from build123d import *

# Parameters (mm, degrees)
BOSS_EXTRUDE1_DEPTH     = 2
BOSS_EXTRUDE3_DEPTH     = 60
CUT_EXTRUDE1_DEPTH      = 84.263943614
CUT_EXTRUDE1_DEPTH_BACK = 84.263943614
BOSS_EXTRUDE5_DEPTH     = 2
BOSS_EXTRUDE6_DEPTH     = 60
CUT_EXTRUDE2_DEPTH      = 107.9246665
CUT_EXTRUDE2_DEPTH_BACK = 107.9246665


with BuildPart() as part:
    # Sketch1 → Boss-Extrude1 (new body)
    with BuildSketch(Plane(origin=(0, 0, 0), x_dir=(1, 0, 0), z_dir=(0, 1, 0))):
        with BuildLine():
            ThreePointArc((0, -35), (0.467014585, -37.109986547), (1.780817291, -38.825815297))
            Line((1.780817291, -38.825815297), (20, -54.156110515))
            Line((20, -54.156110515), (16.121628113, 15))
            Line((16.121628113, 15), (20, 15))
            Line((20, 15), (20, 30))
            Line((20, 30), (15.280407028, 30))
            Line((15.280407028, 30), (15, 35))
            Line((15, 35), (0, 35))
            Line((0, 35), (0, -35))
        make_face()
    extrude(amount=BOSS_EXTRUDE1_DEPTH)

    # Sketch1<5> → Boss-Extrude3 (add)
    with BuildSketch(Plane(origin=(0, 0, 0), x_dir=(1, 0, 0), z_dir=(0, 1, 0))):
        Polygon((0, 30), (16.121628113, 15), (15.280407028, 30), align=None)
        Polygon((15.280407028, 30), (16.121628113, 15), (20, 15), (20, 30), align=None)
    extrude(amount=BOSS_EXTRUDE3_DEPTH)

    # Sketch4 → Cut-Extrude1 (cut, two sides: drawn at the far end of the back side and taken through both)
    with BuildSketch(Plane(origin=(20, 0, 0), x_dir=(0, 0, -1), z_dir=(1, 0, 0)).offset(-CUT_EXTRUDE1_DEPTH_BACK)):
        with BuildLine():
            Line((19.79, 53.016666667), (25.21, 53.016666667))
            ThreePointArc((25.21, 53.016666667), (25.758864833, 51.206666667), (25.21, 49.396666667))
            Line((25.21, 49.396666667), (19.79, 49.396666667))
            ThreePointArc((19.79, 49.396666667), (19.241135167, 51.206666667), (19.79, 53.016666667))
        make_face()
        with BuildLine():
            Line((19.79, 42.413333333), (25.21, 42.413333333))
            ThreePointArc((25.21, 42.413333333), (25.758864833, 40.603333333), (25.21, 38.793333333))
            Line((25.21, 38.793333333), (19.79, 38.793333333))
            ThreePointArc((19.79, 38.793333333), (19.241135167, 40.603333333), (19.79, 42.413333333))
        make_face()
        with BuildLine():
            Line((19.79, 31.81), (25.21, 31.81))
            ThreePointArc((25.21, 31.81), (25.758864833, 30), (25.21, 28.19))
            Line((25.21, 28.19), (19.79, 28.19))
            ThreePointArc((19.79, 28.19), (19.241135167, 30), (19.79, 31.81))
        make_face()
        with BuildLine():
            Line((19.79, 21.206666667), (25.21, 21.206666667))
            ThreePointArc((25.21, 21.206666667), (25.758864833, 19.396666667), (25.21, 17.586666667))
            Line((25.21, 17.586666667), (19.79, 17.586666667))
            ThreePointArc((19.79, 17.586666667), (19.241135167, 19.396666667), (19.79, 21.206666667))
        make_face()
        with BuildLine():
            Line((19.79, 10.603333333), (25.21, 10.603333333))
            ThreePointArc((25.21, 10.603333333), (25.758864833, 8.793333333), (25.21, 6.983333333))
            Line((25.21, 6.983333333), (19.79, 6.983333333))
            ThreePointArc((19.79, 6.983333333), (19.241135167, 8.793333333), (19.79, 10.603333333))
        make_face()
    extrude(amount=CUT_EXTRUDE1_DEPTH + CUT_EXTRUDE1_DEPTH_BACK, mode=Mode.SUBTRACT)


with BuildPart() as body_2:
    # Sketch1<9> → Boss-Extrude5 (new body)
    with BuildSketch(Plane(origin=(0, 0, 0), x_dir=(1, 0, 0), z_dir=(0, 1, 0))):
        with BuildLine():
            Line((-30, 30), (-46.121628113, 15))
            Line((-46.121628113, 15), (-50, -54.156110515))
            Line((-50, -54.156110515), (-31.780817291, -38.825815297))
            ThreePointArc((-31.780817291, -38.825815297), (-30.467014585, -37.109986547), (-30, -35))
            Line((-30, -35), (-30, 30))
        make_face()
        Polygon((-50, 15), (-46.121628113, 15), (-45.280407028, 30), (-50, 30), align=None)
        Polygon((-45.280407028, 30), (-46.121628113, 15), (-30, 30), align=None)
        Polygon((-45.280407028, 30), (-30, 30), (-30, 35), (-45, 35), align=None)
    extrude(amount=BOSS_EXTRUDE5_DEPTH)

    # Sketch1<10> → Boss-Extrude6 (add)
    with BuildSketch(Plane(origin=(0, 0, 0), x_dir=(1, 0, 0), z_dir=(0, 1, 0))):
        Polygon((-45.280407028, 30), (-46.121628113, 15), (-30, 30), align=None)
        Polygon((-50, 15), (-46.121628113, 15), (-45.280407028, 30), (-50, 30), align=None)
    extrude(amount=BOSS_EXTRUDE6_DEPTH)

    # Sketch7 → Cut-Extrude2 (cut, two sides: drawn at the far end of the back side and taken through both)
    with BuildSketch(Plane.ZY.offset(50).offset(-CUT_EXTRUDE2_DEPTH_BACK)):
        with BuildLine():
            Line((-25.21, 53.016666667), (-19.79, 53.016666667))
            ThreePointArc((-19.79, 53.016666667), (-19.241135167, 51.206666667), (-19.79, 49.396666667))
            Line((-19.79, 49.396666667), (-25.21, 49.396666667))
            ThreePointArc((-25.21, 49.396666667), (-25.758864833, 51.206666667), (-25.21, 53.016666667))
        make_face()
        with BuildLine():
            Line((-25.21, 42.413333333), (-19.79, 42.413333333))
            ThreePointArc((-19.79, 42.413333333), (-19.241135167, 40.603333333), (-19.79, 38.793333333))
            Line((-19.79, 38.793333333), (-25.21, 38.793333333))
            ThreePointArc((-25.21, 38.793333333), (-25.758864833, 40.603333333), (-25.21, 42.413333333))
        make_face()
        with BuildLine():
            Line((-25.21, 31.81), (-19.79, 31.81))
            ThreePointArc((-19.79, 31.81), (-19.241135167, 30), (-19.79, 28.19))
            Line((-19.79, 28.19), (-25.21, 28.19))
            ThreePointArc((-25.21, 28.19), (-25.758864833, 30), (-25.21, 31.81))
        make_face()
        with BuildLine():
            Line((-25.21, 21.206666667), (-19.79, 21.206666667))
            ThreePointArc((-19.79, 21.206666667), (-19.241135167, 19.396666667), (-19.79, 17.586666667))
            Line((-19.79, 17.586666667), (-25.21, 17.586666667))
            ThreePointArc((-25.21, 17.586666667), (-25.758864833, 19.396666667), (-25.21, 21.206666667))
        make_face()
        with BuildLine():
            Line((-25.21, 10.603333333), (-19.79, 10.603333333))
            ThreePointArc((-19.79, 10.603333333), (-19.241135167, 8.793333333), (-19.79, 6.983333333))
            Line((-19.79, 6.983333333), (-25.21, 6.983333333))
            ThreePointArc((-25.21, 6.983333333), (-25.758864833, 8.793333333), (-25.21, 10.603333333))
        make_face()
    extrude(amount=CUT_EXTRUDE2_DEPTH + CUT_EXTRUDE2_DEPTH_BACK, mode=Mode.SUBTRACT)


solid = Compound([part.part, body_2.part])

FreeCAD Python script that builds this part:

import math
import FreeCAD as App
import Part
import Sketcher

V = App.Vector
Q = App.Units.Quantity

doc = App.newDocument("Part")
body = doc.addObject("PartDesign::Body", "Body")

sketch1 = body.newObject("Sketcher::SketchObject", "Sketch")
sketch1.AttachmentSupport = (doc.getObject("XZ_Plane"), [""])
sketch1.MapMode = "FlatFace"
sketch1.addGeometry(Part.ArcOfCircle(Part.Circle(V(5, 35, 0), V(0, 0, 1), 5), math.radians(130), math.radians(180)), False)
sketch1.addGeometry(Part.LineSegment(V(1.8, 38.8, 0), V(20, 54.2, 0)), False)
sketch1.addGeometry(Part.LineSegment(V(20, 54.2, 0), V(16.1, -15, 0)), False)
sketch1.addGeometry(Part.LineSegment(V(16.1, -15, 0), V(20, -15, 0)), False)
sketch1.addGeometry(Part.LineSegment(V(20, -15, 0), V(20, -30, 0)), False)
sketch1.addGeometry(Part.LineSegment(V(20, -30, 0), V(15.3, -30, 0)), False)
sketch1.addGeometry(Part.LineSegment(V(15.3, -30, 0), V(15, -35, 0)), False)
sketch1.addGeometry(Part.LineSegment(V(15, -35, 0), V(0, -35, 0)), False)
sketch1.addGeometry(Part.LineSegment(V(0, -35, 0), V(0, 35, 0)), False)
sketch1.addConstraint(Sketcher.Constraint("Tangent", 0, 1, 1, 1))
sketch1.addConstraint(Sketcher.Constraint("Coincident", 1, 2, 2, 1))
sketch1.addConstraint(Sketcher.Constraint("Coincident", 2, 2, 3, 1))
sketch1.addConstraint(Sketcher.Constraint("Coincident", 3, 2, 4, 1))
sketch1.addConstraint(Sketcher.Constraint("Coincident", 4, 2, 5, 1))
sketch1.addConstraint(Sketcher.Constraint("Coincident", 5, 2, 6, 1))
sketch1.addConstraint(Sketcher.Constraint("Coincident", 6, 2, 7, 1))
sketch1.addConstraint(Sketcher.Constraint("Coincident", 7, 2, 8, 1))
sketch1.addConstraint(Sketcher.Constraint("Tangent", 8, 2, 0, 2))
sketch1.addConstraint(Sketcher.Constraint("Horizontal", 3))
sketch1.addConstraint(Sketcher.Constraint("Vertical", 4))
sketch1.addConstraint(Sketcher.Constraint("Horizontal", 5))
sketch1.addConstraint(Sketcher.Constraint("Horizontal", 7))
sketch1.addConstraint(Sketcher.Constraint("Vertical", 8))
sketch1.addConstraint(Sketcher.Constraint("Symmetric", 7, 2, 8, 2, -1, 1))
sketch1.addConstraint(Sketcher.Constraint("Parallel", 2, 6))
sketch1.addConstraint(Sketcher.Constraint("Vertical", 1, 2, 3, 2))
sketch1.addConstraint(Sketcher.Constraint("Equal", 7, 4))
sketch1.addConstraint(Sketcher.Constraint("Radius", 0, Q("5 mm")))
sketch1.addConstraint(Sketcher.Constraint("DistanceX", 7, 2, 7, 1, Q("15 mm")))
sketch1.addConstraint(Sketcher.Constraint("DistanceY", 8, 1, 8, 2, Q("70 mm")))
sketch1.addConstraint(Sketcher.Constraint("DistanceX", -1, 1, 1, 2, Q("20 mm")))
sketch1.addConstraint(Sketcher.Constraint("DistanceY", 2, 2, -1, 1, Q("15 mm")))
sketch1.addConstraint(Sketcher.Constraint("DistanceX", 3, 1, 3, 2, Q("3.878372 mm")))
sketch1.addConstraint(Sketcher.Constraint("Distance", 1, Q("23.81085 mm")))
pad1 = body.newObject("PartDesign::Pad", "Pad")
pad1.Profile = sketch1
pad1.Length = 2
pad1.Reversed = True

sketch2 = body.newObject("Sketcher::SketchObject", "Sketch001")
sketch2.AttachmentSupport = (doc.getObject("XZ_Plane"), [""])
sketch2.MapMode = "FlatFace"
sketch2.addGeometry(Part.LineSegment(V(0, -30, 0), V(16.1, -15, 0)), False)
sketch2.addGeometry(Part.LineSegment(V(16.1, -15, 0), V(20, -15, 0)), False)
sketch2.addGeometry(Part.LineSegment(V(20, -15, 0), V(20, -30, 0)), False)
sketch2.addGeometry(Part.LineSegment(V(20, -30, 0), V(0, -30, 0)), False)
sketch2.addConstraint(Sketcher.Constraint("Coincident", 0, 2, 1, 1))
sketch2.addConstraint(Sketcher.Constraint("Coincident", 1, 2, 2, 1))
sketch2.addConstraint(Sketcher.Constraint("Coincident", 2, 2, 3, 1))
sketch2.addConstraint(Sketcher.Constraint("Coincident", 3, 2, 0, 1))
sketch2.addConstraint(Sketcher.Constraint("Horizontal", 1))
sketch2.addConstraint(Sketcher.Constraint("Vertical", 2))
sketch2.addConstraint(Sketcher.Constraint("Horizontal", 3))
sketch2.addConstraint(Sketcher.Constraint("PointOnObject", 3, 2, -2))
sketch2.addConstraint(Sketcher.Constraint("DistanceX", 3, 2, 3, 1, Q("20 mm")))
sketch2.addConstraint(Sketcher.Constraint("DistanceY", 2, 2, 2, 1, Q("15 mm")))
sketch2.addConstraint(Sketcher.Constraint("DistanceY", 0, 2, -1, 1, Q("15 mm")))
sketch2.addConstraint(Sketcher.Constraint("Distance", 0, Q("22.020602 mm")))
pad2 = body.newObject("PartDesign::Pad", "Pad001")
pad2.Profile = sketch2
pad2.Length = 60
pad2.Reversed = True

sketch3 = body.newObject("Sketcher::SketchObject", "Sketch002")
sketch3.AttachmentSupport = (doc.getObject("YZ_Plane"), [""])
sketch3.MapMode = "FlatFace"
sketch3.AttachmentOffset = App.Placement(V(0, 0, 20), App.Rotation())
sketch3.addGeometry(Part.LineSegment(V(53, -25.2, 0), V(53, -19.8, 0)), False)
sketch3.addGeometry(Part.ArcOfCircle(Part.Circle(V(51.2, -22.5, 0), V(0, 0, 1), 3.3), math.radians(56), math.radians(124)), False)
sketch3.addGeometry(Part.LineSegment(V(49.4, -19.8, 0), V(49.4, -25.2, 0)), False)
sketch3.addGeometry(Part.ArcOfCircle(Part.Circle(V(51.2, -22.5, 0), V(0, 0, 1), 3.3), math.radians(-124), math.radians(-56)), False)
sketch3.addGeometry(Part.LineSegment(V(42.4, -25.2, 0), V(42.4, -19.8, 0)), False)
sketch3.addGeometry(Part.ArcOfCircle(Part.Circle(V(40.6, -22.5, 0), V(0, 0, 1), 3.3), math.radians(56), math.radians(124)), False)
sketch3.addGeometry(Part.LineSegment(V(38.8, -19.8, 0), V(38.8, -25.2, 0)), False)
sketch3.addGeometry(Part.ArcOfCircle(Part.Circle(V(40.6, -22.5, 0), V(0, 0, 1), 3.3), math.radians(-124), math.radians(-56)), False)
sketch3.addGeometry(Part.LineSegment(V(31.8, -25.2, 0), V(31.8, -19.8, 0)), False)
sketch3.addGeometry(Part.ArcOfCircle(Part.Circle(V(30, -22.5, 0), V(0, 0, 1), 3.3), math.radians(56), math.radians(124)), False)
sketch3.addGeometry(Part.LineSegment(V(28.2, -19.8, 0), V(28.2, -25.2, 0)), False)
sketch3.addGeometry(Part.ArcOfCircle(Part.Circle(V(30, -22.5, 0), V(0, 0, 1), 3.3), math.radians(-124), math.radians(-56)), False)
sketch3.addGeometry(Part.LineSegment(V(21.2, -25.2, 0), V(21.2, -19.8, 0)), False)
sketch3.addGeometry(Part.ArcOfCircle(Part.Circle(V(19.4, -22.5, 0), V(0, 0, 1), 3.3), math.radians(56), math.radians(124)), False)
sketch3.addGeometry(Part.LineSegment(V(17.6, -19.8, 0), V(17.6, -25.2, 0)), False)
sketch3.addGeometry(Part.ArcOfCircle(Part.Circle(V(19.4, -22.5, 0), V(0, 0, 1), 3.3), math.radians(-124), math.radians(-56)), False)
sketch3.addGeometry(Part.LineSegment(V(10.6, -25.2, 0), V(10.6, -19.8, 0)), False)
sketch3.addGeometry(Part.ArcOfCircle(Part.Circle(V(8.8, -22.5, 0), V(0, 0, 1), 3.3), math.radians(56), math.radians(124)), False)
sketch3.addGeometry(Part.LineSegment(V(7, -19.8, 0), V(7, -25.2, 0)), False)
sketch3.addGeometry(Part.ArcOfCircle(Part.Circle(V(8.8, -22.5, 0), V(0, 0, 1), 3.3), math.radians(-124), math.radians(-56)), False)
sketch3.addConstraint(Sketcher.Constraint("Coincident", 0, 2, 1, 1))
sketch3.addConstraint(Sketcher.Constraint("Coincident", 1, 2, 2, 1))
sketch3.addConstraint(Sketcher.Constraint("Coincident", 2, 2, 3, 1))
sketch3.addConstraint(Sketcher.Constraint("Coincident", 3, 2, 0, 1))
sketch3.addConstraint(Sketcher.Constraint("Coincident", 4, 2, 5, 1))
sketch3.addConstraint(Sketcher.Constraint("Coincident", 5, 2, 6, 1))
sketch3.addConstraint(Sketcher.Constraint("Coincident", 6, 2, 7, 1))
sketch3.addConstraint(Sketcher.Constraint("Coincident", 7, 2, 4, 1))
sketch3.addConstraint(Sketcher.Constraint("Coincident", 8, 2, 9, 1))
sketch3.addConstraint(Sketcher.Constraint("Coincident", 9, 2, 10, 1))
sketch3.addConstraint(Sketcher.Constraint("Coincident", 10, 2, 11, 1))
sketch3.addConstraint(Sketcher.Constraint("Coincident", 11, 2, 8, 1))
sketch3.addConstraint(Sketcher.Constraint("Coincident", 12, 2, 13, 1))
sketch3.addConstraint(Sketcher.Constraint("Coincident", 13, 2, 14, 1))
sketch3.addConstraint(Sketcher.Constraint("Coincident", 14, 2, 15, 1))
sketch3.addConstraint(Sketcher.Constraint("Coincident", 15, 2, 12, 1))
sketch3.addConstraint(Sketcher.Constraint("Coincident", 16, 2, 17, 1))
sketch3.addConstraint(Sketcher.Constraint("Coincident", 17, 2, 18, 1))
sketch3.addConstraint(Sketcher.Constraint("Coincident", 18, 2, 19, 1))
sketch3.addConstraint(Sketcher.Constraint("Coincident", 19, 2, 16, 1))
sketch3.addConstraint(Sketcher.Constraint("Vertical", 0))
sketch3.addConstraint(Sketcher.Constraint("Vertical", 2))
sketch3.addConstraint(Sketcher.Constraint("Vertical", 4))
sketch3.addConstraint(Sketcher.Constraint("Vertical", 6))
sketch3.addConstraint(Sketcher.Constraint("Vertical", 8))
sketch3.addConstraint(Sketcher.Constraint("Vertical", 10))
sketch3.addConstraint(Sketcher.Constraint("Vertical", 12))
sketch3.addConstraint(Sketcher.Constraint("Vertical", 14))
sketch3.addConstraint(Sketcher.Constraint("Vertical", 16))
sketch3.addConstraint(Sketcher.Constraint("Vertical", 18))
sketch3.addConstraint(Sketcher.Constraint("Coincident", 3, 3, 1, 3))
sketch3.addConstraint(Sketcher.Constraint("Coincident", 7, 3, 5, 3))
sketch3.addConstraint(Sketcher.Constraint("Coincident", 11, 3, 9, 3))
sketch3.addConstraint(Sketcher.Constraint("Coincident", 15, 3, 13, 3))
sketch3.addConstraint(Sketcher.Constraint("Coincident", 19, 3, 17, 3))
sketch3.addConstraint(Sketcher.Constraint("Equal", 1, 3))
sketch3.addConstraint(Sketcher.Constraint("Equal", 3, 5))
sketch3.addConstraint(Sketcher.Constraint("Equal", 5, 7))
sketch3.addConstraint(Sketcher.Constraint("Equal", 7, 9))
sketch3.addConstraint(Sketcher.Constraint("Equal", 9, 11))
sketch3.addConstraint(Sketcher.Constraint("Equal", 11, 13))
sketch3.addConstraint(Sketcher.Constraint("Equal", 13, 15))
sketch3.addConstraint(Sketcher.Constraint("Equal", 15, 17))
sketch3.addConstraint(Sketcher.Constraint("Equal", 17, 19))
sketch3.addConstraint(Sketcher.Constraint("Horizontal", 3, 3, 5, 3))
sketch3.addConstraint(Sketcher.Constraint("Horizontal", 7, 3, 9, 3))
sketch3.addConstraint(Sketcher.Constraint("Horizontal", 11, 3, 13, 3))
sketch3.addConstraint(Sketcher.Constraint("Horizontal", 15, 3, 17, 3))
sketch3.addConstraint(Sketcher.Constraint("Horizontal", 0, 2, 1, 2))
sketch3.addConstraint(Sketcher.Constraint("Horizontal", 1, 2, 4, 2))
sketch3.addConstraint(Sketcher.Constraint("Horizontal", 4, 2, 5, 2))
sketch3.addConstraint(Sketcher.Constraint("Horizontal", 5, 2, 8, 2))
sketch3.addConstraint(Sketcher.Constraint("Horizontal", 8, 2, 9, 2))
sketch3.addConstraint(Sketcher.Constraint("Horizontal", 9, 2, 12, 2))
sketch3.addConstraint(Sketcher.Constraint("Horizontal", 12, 2, 13, 2))
sketch3.addConstraint(Sketcher.Constraint("Horizontal", 13, 2, 16, 2))
sketch3.addConstraint(Sketcher.Constraint("Horizontal", 16, 2, 17, 2))
sketch3.addConstraint(Sketcher.Constraint("DistanceX", -1, 1, 9, 3, Q("30 mm")))
sketch3.addConstraint(Sketcher.Constraint("DistanceY", 0, 1, 0, 2, Q("5.42 mm")))
sketch3.addConstraint(Sketcher.Constraint("DistanceY", 1, 3, -1, 1, Q("22.5 mm")))
sketch3.addConstraint(Sketcher.Constraint("DistanceX", -1, 1, 8, 2, Q("31.81 mm")))
sketch3.addConstraint(Sketcher.Constraint("DistanceX", 13, 3, 1, 3, Q("31.81 mm")))
sketch3.addConstraint(Sketcher.Constraint("DistanceX", 17, 3, 5, 3, Q("31.81 mm")))
sketch3.addConstraint(Sketcher.Constraint("DistanceX", -1, 1, 1, 3, Q("51.206667 mm")))
sketch3.addConstraint(Sketcher.Constraint("DistanceX", -1, 1, 5, 3, Q("40.603333 mm")))
pocket1 = body.newObject("PartDesign::Pocket", "Pocket")
pocket1.Profile = sketch3
pocket1.Type = "ThroughAll"
pocket1.Midplane = True
body2 = doc.addObject("PartDesign::Body", "Body001")

sketch4 = body2.newObject("Sketcher::SketchObject", "Sketch003")
sketch4.AttachmentSupport = (doc.getObject("XZ_Plane001"), [""])
sketch4.MapMode = "FlatFace"
sketch4.addGeometry(Part.LineSegment(V(-46.1, -15, 0), V(-50, 54.2, 0)), False)
sketch4.addGeometry(Part.LineSegment(V(-50, 54.2, 0), V(-31.8, 38.8, 0)), False)
sketch4.addGeometry(Part.ArcOfCircle(Part.Circle(V(-35, 35, 0), V(0, 0, 1), 5), math.radians(0), math.radians(50)), False)
sketch4.addGeometry(Part.LineSegment(V(-30, 35, 0), V(-30, -35, 0)), False)
sketch4.addGeometry(Part.LineSegment(V(-30, -35, 0), V(-45, -35, 0)), False)
sketch4.addGeometry(Part.LineSegment(V(-45, -35, 0), V(-45.3, -30, 0)), False)
sketch4.addGeometry(Part.LineSegment(V(-45.3, -30, 0), V(-50, -30, 0)), False)
sketch4.addGeometry(Part.LineSegment(V(-50, -30, 0), V(-50, -15, 0)), False)
sketch4.addGeometry(Part.LineSegment(V(-50, -15, 0), V(-46.1, -15, 0)), False)
sketch4.addConstraint(Sketcher.Constraint("Coincident", 0, 2, 1, 1))
sketch4.addConstraint(Sketcher.Constraint("Tangent", 1, 2, 2, 2))
sketch4.addConstraint(Sketcher.Constraint("Tangent", 2, 1, 3, 1))
sketch4.addConstraint(Sketcher.Constraint("Coincident", 3, 2, 4, 1))
sketch4.addConstraint(Sketcher.Constraint("Coincident", 4, 2, 5, 1))
sketch4.addConstraint(Sketcher.Constraint("Coincident", 5, 2, 6, 1))
sketch4.addConstraint(Sketcher.Constraint("Coincident", 6, 2, 7, 1))
sketch4.addConstraint(Sketcher.Constraint("Coincident", 7, 2, 8, 1))
sketch4.addConstraint(Sketcher.Constraint("Coincident", 8, 2, 0, 1))
sketch4.addConstraint(Sketcher.Constraint("Vertical", 3))
sketch4.addConstraint(Sketcher.Constraint("Horizontal", 4))
sketch4.addConstraint(Sketcher.Constraint("Horizontal", 6))
sketch4.addConstraint(Sketcher.Constraint("Vertical", 7))
sketch4.addConstraint(Sketcher.Constraint("Horizontal", 8))
sketch4.addConstraint(Sketcher.Constraint("Parallel", 0, 5))
sketch4.addConstraint(Sketcher.Constraint("Vertical", 0, 2, 6, 2))
sketch4.addConstraint(Sketcher.Constraint("Equal", 4, 7))
sketch4.addConstraint(Sketcher.Constraint("Radius", 2, Q("5 mm")))
sketch4.addConstraint(Sketcher.Constraint("DistanceX", 4, 2, 4, 1, Q("15 mm")))
sketch4.addConstraint(Sketcher.Constraint("DistanceY", 3, 2, 3, 1, Q("70 mm")))
sketch4.addConstraint(Sketcher.Constraint("DistanceX", 2, 3, -1, 1, Q("35 mm")))
sketch4.addConstraint(Sketcher.Constraint("DistanceY", -1, 1, 2, 3, Q("35 mm")))
sketch4.addConstraint(Sketcher.Constraint("DistanceX", 0, 2, -1, 1, Q("50 mm")))
sketch4.addConstraint(Sketcher.Constraint("DistanceY", 5, 2, -1, 1, Q("30 mm")))
sketch4.addConstraint(Sketcher.Constraint("DistanceX", 8, 1, 8, 2, Q("3.878372 mm")))
sketch4.addConstraint(Sketcher.Constraint("Distance", 1, Q("23.81085 mm")))
pad3 = body2.newObject("PartDesign::Pad", "Pad002")
pad3.Profile = sketch4
pad3.Length = 2
pad3.Reversed = True

sketch5 = body2.newObject("Sketcher::SketchObject", "Sketch004")
sketch5.AttachmentSupport = (doc.getObject("XZ_Plane001"), [""])
sketch5.MapMode = "FlatFace"
sketch5.addGeometry(Part.LineSegment(V(-46.1, -15, 0), V(-30, -30, 0)), False)
sketch5.addGeometry(Part.LineSegment(V(-30, -30, 0), V(-50, -30, 0)), False)
sketch5.addGeometry(Part.LineSegment(V(-50, -30, 0), V(-50, -15, 0)), False)
sketch5.addGeometry(Part.LineSegment(V(-50, -15, 0), V(-46.1, -15, 0)), False)
sketch5.addConstraint(Sketcher.Constraint("Coincident", 0, 2, 1, 1))
sketch5.addConstraint(Sketcher.Constraint("Coincident", 1, 2, 2, 1))
sketch5.addConstraint(Sketcher.Constraint("Coincident", 2, 2, 3, 1))
sketch5.addConstraint(Sketcher.Constraint("Coincident", 3, 2, 0, 1))
sketch5.addConstraint(Sketcher.Constraint("Horizontal", 1))
sketch5.addConstraint(Sketcher.Constraint("Vertical", 2))
sketch5.addConstraint(Sketcher.Constraint("Horizontal", 3))
sketch5.addConstraint(Sketcher.Constraint("DistanceX", 1, 2, 1, 1, Q("20 mm")))
sketch5.addConstraint(Sketcher.Constraint("DistanceY", 2, 1, 2, 2, Q("15 mm")))
sketch5.addConstraint(Sketcher.Constraint("DistanceX", 0, 2, -1, 1, Q("30 mm")))
sketch5.addConstraint(Sketcher.Constraint("DistanceY", 0, 2, -1, 1, Q("30 mm")))
sketch5.addConstraint(Sketcher.Constraint("Distance", 0, Q("22.020602 mm")))
pad4 = body2.newObject("PartDesign::Pad", "Pad003")
pad4.Profile = sketch5
pad4.Length = 60
pad4.Reversed = True

sketch6 = body2.newObject("Sketcher::SketchObject", "Sketch005")
sketch6.AttachmentSupport = (doc.getObject("YZ_Plane001"), [""])
sketch6.MapMode = "FlatFace"
sketch6.AttachmentOffset = App.Placement(V(0, 0, -50), App.Rotation())
sketch6.addGeometry(Part.LineSegment(V(53, -19.8, 0), V(53, -25.2, 0)), False)
sketch6.addGeometry(Part.ArcOfCircle(Part.Circle(V(51.2, -22.5, 0), V(0, 0, 1), 3.3), math.radians(-124), math.radians(-56)), False)
sketch6.addGeometry(Part.LineSegment(V(49.4, -25.2, 0), V(49.4, -19.8, 0)), False)
sketch6.addGeometry(Part.ArcOfCircle(Part.Circle(V(51.2, -22.5, 0), V(0, 0, 1), 3.3), math.radians(56), math.radians(124)), False)
sketch6.addGeometry(Part.LineSegment(V(42.4, -19.8, 0), V(42.4, -25.2, 0)), False)
sketch6.addGeometry(Part.ArcOfCircle(Part.Circle(V(40.6, -22.5, 0), V(0, 0, 1), 3.3), math.radians(-124), math.radians(-56)), False)
sketch6.addGeometry(Part.LineSegment(V(38.8, -25.2, 0), V(38.8, -19.8, 0)), False)
sketch6.addGeometry(Part.ArcOfCircle(Part.Circle(V(40.6, -22.5, 0), V(0, 0, 1), 3.3), math.radians(56), math.radians(124)), False)
sketch6.addGeometry(Part.LineSegment(V(31.8, -19.8, 0), V(31.8, -25.2, 0)), False)
sketch6.addGeometry(Part.ArcOfCircle(Part.Circle(V(30, -22.5, 0), V(0, 0, 1), 3.3), math.radians(-124), math.radians(-56)), False)
sketch6.addGeometry(Part.LineSegment(V(28.2, -25.2, 0), V(28.2, -19.8, 0)), False)
sketch6.addGeometry(Part.ArcOfCircle(Part.Circle(V(30, -22.5, 0), V(0, 0, 1), 3.3), math.radians(56), math.radians(124)), False)
sketch6.addGeometry(Part.LineSegment(V(21.2, -19.8, 0), V(21.2, -25.2, 0)), False)
sketch6.addGeometry(Part.ArcOfCircle(Part.Circle(V(19.4, -22.5, 0), V(0, 0, 1), 3.3), math.radians(-124), math.radians(-56)), False)
sketch6.addGeometry(Part.LineSegment(V(17.6, -25.2, 0), V(17.6, -19.8, 0)), False)
sketch6.addGeometry(Part.ArcOfCircle(Part.Circle(V(19.4, -22.5, 0), V(0, 0, 1), 3.3), math.radians(56), math.radians(124)), False)
sketch6.addGeometry(Part.LineSegment(V(10.6, -19.8, 0), V(10.6, -25.2, 0)), False)
sketch6.addGeometry(Part.ArcOfCircle(Part.Circle(V(8.8, -22.5, 0), V(0, 0, 1), 3.3), math.radians(-124), math.radians(-56)), False)
sketch6.addGeometry(Part.LineSegment(V(7, -25.2, 0), V(7, -19.8, 0)), False)
sketch6.addGeometry(Part.ArcOfCircle(Part.Circle(V(8.8, -22.5, 0), V(0, 0, 1), 3.3), math.radians(56), math.radians(124)), False)
sketch6.addConstraint(Sketcher.Constraint("Coincident", 0, 2, 1, 2))
sketch6.addConstraint(Sketcher.Constraint("Coincident", 1, 1, 2, 1))
sketch6.addConstraint(Sketcher.Constraint("Coincident", 2, 2, 3, 2))
sketch6.addConstraint(Sketcher.Constraint("Coincident", 3, 1, 0, 1))
sketch6.addConstraint(Sketcher.Constraint("Coincident", 4, 2, 5, 2))
sketch6.addConstraint(Sketcher.Constraint("Coincident", 5, 1, 6, 1))
sketch6.addConstraint(Sketcher.Constraint("Coincident", 6, 2, 7, 2))
sketch6.addConstraint(Sketcher.Constraint("Coincident", 7, 1, 4, 1))
sketch6.addConstraint(Sketcher.Constraint("Coincident", 8, 2, 9, 2))
sketch6.addConstraint(Sketcher.Constraint("Coincident", 9, 1, 10, 1))
sketch6.addConstraint(Sketcher.Constraint("Coincident", 10, 2, 11, 2))
sketch6.addConstraint(Sketcher.Constraint("Coincident", 11, 1, 8, 1))
sketch6.addConstraint(Sketcher.Constraint("Coincident", 12, 2, 13, 2))
sketch6.addConstraint(Sketcher.Constraint("Coincident", 13, 1, 14, 1))
sketch6.addConstraint(Sketcher.Constraint("Coincident", 14, 2, 15, 2))
sketch6.addConstraint(Sketcher.Constraint("Coincident", 15, 1, 12, 1))
sketch6.addConstraint(Sketcher.Constraint("Coincident", 16, 2, 17, 2))
sketch6.addConstraint(Sketcher.Constraint("Coincident", 17, 1, 18, 1))
sketch6.addConstraint(Sketcher.Constraint("Coincident", 18, 2, 19, 2))
sketch6.addConstraint(Sketcher.Constraint("Coincident", 19, 1, 16, 1))
sketch6.addConstraint(Sketcher.Constraint("Vertical", 0))
sketch6.addConstraint(Sketcher.Constraint("Vertical", 2))
sketch6.addConstraint(Sketcher.Constraint("Vertical", 4))
sketch6.addConstraint(Sketcher.Constraint("Vertical", 6))
sketch6.addConstraint(Sketcher.Constraint("Vertical", 8))
sketch6.addConstraint(Sketcher.Constraint("Vertical", 10))
sketch6.addConstraint(Sketcher.Constraint("Vertical", 12))
sketch6.addConstraint(Sketcher.Constraint("Vertical", 14))
sketch6.addConstraint(Sketcher.Constraint("Vertical", 16))
sketch6.addConstraint(Sketcher.Constraint("Vertical", 18))
sketch6.addConstraint(Sketcher.Constraint("Coincident", 3, 3, 1, 3))
sketch6.addConstraint(Sketcher.Constraint("Coincident", 7, 3, 5, 3))
sketch6.addConstraint(Sketcher.Constraint("Coincident", 11, 3, 9, 3))
sketch6.addConstraint(Sketcher.Constraint("Coincident", 15, 3, 13, 3))
sketch6.addConstraint(Sketcher.Constraint("Coincident", 19, 3, 17, 3))
sketch6.addConstraint(Sketcher.Constraint("Equal", 1, 3))
sketch6.addConstraint(Sketcher.Constraint("Equal", 3, 5))
sketch6.addConstraint(Sketcher.Constraint("Equal", 5, 7))
sketch6.addConstraint(Sketcher.Constraint("Equal", 7, 9))
sketch6.addConstraint(Sketcher.Constraint("Equal", 9, 11))
sketch6.addConstraint(Sketcher.Constraint("Equal", 11, 13))
sketch6.addConstraint(Sketcher.Constraint("Equal", 13, 15))
sketch6.addConstraint(Sketcher.Constraint("Equal", 15, 17))
sketch6.addConstraint(Sketcher.Constraint("Equal", 17, 19))
sketch6.addConstraint(Sketcher.Constraint("Horizontal", 3, 3, 5, 3))
sketch6.addConstraint(Sketcher.Constraint("Horizontal", 7, 3, 9, 3))
sketch6.addConstraint(Sketcher.Constraint("Horizontal", 11, 3, 13, 3))
sketch6.addConstraint(Sketcher.Constraint("Horizontal", 15, 3, 17, 3))
sketch6.addConstraint(Sketcher.Constraint("Horizontal", 0, 2, 1, 1))
sketch6.addConstraint(Sketcher.Constraint("Horizontal", 1, 1, 4, 2))
sketch6.addConstraint(Sketcher.Constraint("Horizontal", 4, 2, 5, 1))
sketch6.addConstraint(Sketcher.Constraint("Horizontal", 5, 1, 8, 2))
sketch6.addConstraint(Sketcher.Constraint("Horizontal", 8, 2, 9, 1))
sketch6.addConstraint(Sketcher.Constraint("Horizontal", 9, 1, 12, 2))
sketch6.addConstraint(Sketcher.Constraint("Horizontal", 12, 2, 13, 1))
sketch6.addConstraint(Sketcher.Constraint("Horizontal", 13, 1, 16, 2))
sketch6.addConstraint(Sketcher.Constraint("Horizontal", 16, 2, 17, 1))
sketch6.addConstraint(Sketcher.Constraint("DistanceX", -1, 1, 9, 3, Q("30 mm")))
sketch6.addConstraint(Sketcher.Constraint("DistanceY", 0, 2, 0, 1, Q("5.42 mm")))
sketch6.addConstraint(Sketcher.Constraint("DistanceY", 1, 3, -1, 1, Q("22.5 mm")))
sketch6.addConstraint(Sketcher.Constraint("DistanceX", -1, 1, 8, 2, Q("31.81 mm")))
sketch6.addConstraint(Sketcher.Constraint("DistanceX", 13, 3, 1, 3, Q("31.81 mm")))
sketch6.addConstraint(Sketcher.Constraint("DistanceX", 17, 3, 5, 3, Q("31.81 mm")))
sketch6.addConstraint(Sketcher.Constraint("DistanceX", -1, 1, 1, 3, Q("51.206667 mm")))
sketch6.addConstraint(Sketcher.Constraint("DistanceX", -1, 1, 5, 3, Q("40.603333 mm")))
pocket2 = body2.newObject("PartDesign::Pocket", "Pocket001")
pocket2.Profile = sketch6
pocket2.Type = "ThroughAll"
pocket2.Midplane = True

doc.recompute()
